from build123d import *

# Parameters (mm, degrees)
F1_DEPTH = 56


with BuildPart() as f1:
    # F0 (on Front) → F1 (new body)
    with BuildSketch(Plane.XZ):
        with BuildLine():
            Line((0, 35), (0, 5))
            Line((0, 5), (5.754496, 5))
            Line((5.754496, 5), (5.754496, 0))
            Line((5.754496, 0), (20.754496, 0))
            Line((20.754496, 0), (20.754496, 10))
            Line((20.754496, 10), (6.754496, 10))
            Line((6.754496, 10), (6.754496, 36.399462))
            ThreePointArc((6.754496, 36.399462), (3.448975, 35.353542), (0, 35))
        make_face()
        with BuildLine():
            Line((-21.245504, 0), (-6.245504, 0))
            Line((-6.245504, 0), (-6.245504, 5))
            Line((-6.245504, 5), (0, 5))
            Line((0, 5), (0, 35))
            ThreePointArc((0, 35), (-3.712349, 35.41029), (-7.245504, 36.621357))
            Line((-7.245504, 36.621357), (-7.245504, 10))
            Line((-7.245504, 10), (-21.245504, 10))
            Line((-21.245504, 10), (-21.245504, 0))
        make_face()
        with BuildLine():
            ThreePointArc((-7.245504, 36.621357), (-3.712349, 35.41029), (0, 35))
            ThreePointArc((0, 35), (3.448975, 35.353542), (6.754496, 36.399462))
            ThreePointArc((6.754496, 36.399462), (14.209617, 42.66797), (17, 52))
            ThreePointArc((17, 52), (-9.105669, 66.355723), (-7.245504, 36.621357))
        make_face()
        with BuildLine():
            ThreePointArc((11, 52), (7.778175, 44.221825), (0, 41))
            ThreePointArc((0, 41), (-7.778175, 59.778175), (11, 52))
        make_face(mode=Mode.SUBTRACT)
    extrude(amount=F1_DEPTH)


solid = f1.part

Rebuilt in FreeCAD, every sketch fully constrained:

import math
import FreeCAD as App
import Part
import Sketcher

V = App.Vector

doc = App.newDocument("Part")
body = doc.addObject("PartDesign::Body", "Body")

# Sketch on XZ plane
sketch1 = body.newObject("Sketcher::SketchObject", "Sketch")
sketch1.AttachmentSupport = (doc.getObject("XZ_Plane"), [""])
sketch1.MapMode = "FlatFace"
sketch1.addGeometry([
    Part.LineSegment(V(6, 5, 0), V(6, 0, 0)),  # 0
    Part.LineSegment(V(6, 0, 0), V(21, 0, 0)),  # 1
    Part.LineSegment(V(21, 0, 0), V(21, 10, 0)),  # 2
    Part.LineSegment(V(21, 10, 0), V(7, 10, 0)),  # 3
    Part.LineSegment(V(7, 10, 0), V(7, 36, 0)),  # 4
    Part.ArcOfCircle(Part.Circle(V(0, 52, 0), V(0, 0, 1), 17), math.radians(-67), math.radians(0)),  # 5
    Part.ArcOfCircle(Part.Circle(V(0, 52, 0), V(0, 0, 1), 17), math.radians(0), math.radians(245)),  # 6
    Part.LineSegment(V(-7, 37, 0), V(-7, 10, 0)),  # 7
    Part.LineSegment(V(-7, 10, 0), V(-21, 10, 0)),  # 8
    Part.LineSegment(V(-21, 10, 0), V(-21, 0, 0)),  # 9
    Part.LineSegment(V(-21, 0, 0), V(-6, 0, 0)),  # 10
    Part.LineSegment(V(-6, 0, 0), V(-6, 5, 0)),  # 11
    Part.LineSegment(V(-6, 5, 0), V(6, 5, 0)),  # 12
    Part.ArcOfCircle(Part.Circle(V(0, 52, 0), V(0, 0, 1), 11), math.radians(0), math.radians(270)),  # 13
    Part.ArcOfCircle(Part.Circle(V(0, 52, 0), V(0, 0, 1), 11), math.radians(-90), math.radians(0)),  # 14
], False)
sketch1.addConstraint([
    Sketcher.Constraint("Coincident", 0, 2, 1, 1),
    Sketcher.Constraint("Coincident", 1, 2, 2, 1),
    Sketcher.Constraint("Coincident", 2, 2, 3, 1),
    Sketcher.Constraint("Coincident", 3, 2, 4, 1),
    Sketcher.Constraint("Coincident", 4, 2, 5, 1),
    Sketcher.Constraint("Tangent", 5, 2, 6, 1),
    Sketcher.Constraint("Coincident", 6, 2, 7, 1),
    Sketcher.Constraint("Coincident", 7, 2, 8, 1),
    Sketcher.Constraint("Coincident", 8, 2, 9, 1),
    Sketcher.Constraint("Coincident", 9, 2, 10, 1),
    Sketcher.Constraint("Coincident", 10, 2, 11, 1),
    Sketcher.Constraint("Coincident", 11, 2, 12, 1),
    Sketcher.Constraint("Coincident", 12, 2, 0, 1),
    Sketcher.Constraint("Tangent", 13, 1, 14, 2),
    Sketcher.Constraint("Coincident", 14, 1, 13, 2),
    Sketcher.Constraint("Vertical", 0),
    Sketcher.Constraint("Horizontal", 1),
    Sketcher.Constraint("Vertical", 2),
    Sketcher.Constraint("Horizontal", 3),
    Sketcher.Constraint("Vertical", 4),
    Sketcher.Constraint("Vertical", 7),
    Sketcher.Constraint("Horizontal", 8),
    Sketcher.Constraint("Vertical", 9),
    Sketcher.Constraint("Horizontal", 10),
    Sketcher.Constraint("Vertical", 11),
    Sketcher.Constraint("Horizontal", 12),
    Sketcher.Constraint("Coincident", 13, 3, 5, 3),
    Sketcher.Constraint("Equal", 5, 6),
    Sketcher.Constraint("PointOnObject", 5, 3, -2),
    Sketcher.Constraint("PointOnObject", 0, 2, -1),
    Sketcher.Constraint("PointOnObject", 9, 2, -1),
    Sketcher.Constraint("PointOnObject", 14, 1, -2),
    Sketcher.Constraint("Horizontal", 14, 3, 5, 2),
    Sketcher.Constraint("Horizontal", 3, 2, 7, 2),
    Sketcher.Constraint("Horizontal", 5, 2, 13, 1),
    Sketcher.Constraint("Equal", 3, 8),
    Sketcher.Constraint("Equal", 1, 10),
    Sketcher.Constraint("Radius", 5, 17.0),
    Sketcher.Constraint("Radius", 13, 11.0),
    Sketcher.Constraint("DistanceX", 1, 1, 1, 2, 15.0),
    Sketcher.Constraint("DistanceX", 3, 2, 3, 1, 14.0),
    Sketcher.Constraint("DistanceX", 12, 1, 12, 2, 12.0),
    Sketcher.Constraint("DistanceY", 0, 2, 0, 1, 5.0),
    Sketcher.Constraint("DistanceY", 2, 1, 2, 2, 10.0),
    Sketcher.Constraint("DistanceY", -1, 1, 5, 3, 52.0),
    Sketcher.Constraint("DistanceY", 4, 1, 4, 2, 26.399462),
])
pad1 = body.newObject("PartDesign::Pad", "Pad")
pad1.Profile = sketch1
pad1.Length = 56

doc.recompute()
